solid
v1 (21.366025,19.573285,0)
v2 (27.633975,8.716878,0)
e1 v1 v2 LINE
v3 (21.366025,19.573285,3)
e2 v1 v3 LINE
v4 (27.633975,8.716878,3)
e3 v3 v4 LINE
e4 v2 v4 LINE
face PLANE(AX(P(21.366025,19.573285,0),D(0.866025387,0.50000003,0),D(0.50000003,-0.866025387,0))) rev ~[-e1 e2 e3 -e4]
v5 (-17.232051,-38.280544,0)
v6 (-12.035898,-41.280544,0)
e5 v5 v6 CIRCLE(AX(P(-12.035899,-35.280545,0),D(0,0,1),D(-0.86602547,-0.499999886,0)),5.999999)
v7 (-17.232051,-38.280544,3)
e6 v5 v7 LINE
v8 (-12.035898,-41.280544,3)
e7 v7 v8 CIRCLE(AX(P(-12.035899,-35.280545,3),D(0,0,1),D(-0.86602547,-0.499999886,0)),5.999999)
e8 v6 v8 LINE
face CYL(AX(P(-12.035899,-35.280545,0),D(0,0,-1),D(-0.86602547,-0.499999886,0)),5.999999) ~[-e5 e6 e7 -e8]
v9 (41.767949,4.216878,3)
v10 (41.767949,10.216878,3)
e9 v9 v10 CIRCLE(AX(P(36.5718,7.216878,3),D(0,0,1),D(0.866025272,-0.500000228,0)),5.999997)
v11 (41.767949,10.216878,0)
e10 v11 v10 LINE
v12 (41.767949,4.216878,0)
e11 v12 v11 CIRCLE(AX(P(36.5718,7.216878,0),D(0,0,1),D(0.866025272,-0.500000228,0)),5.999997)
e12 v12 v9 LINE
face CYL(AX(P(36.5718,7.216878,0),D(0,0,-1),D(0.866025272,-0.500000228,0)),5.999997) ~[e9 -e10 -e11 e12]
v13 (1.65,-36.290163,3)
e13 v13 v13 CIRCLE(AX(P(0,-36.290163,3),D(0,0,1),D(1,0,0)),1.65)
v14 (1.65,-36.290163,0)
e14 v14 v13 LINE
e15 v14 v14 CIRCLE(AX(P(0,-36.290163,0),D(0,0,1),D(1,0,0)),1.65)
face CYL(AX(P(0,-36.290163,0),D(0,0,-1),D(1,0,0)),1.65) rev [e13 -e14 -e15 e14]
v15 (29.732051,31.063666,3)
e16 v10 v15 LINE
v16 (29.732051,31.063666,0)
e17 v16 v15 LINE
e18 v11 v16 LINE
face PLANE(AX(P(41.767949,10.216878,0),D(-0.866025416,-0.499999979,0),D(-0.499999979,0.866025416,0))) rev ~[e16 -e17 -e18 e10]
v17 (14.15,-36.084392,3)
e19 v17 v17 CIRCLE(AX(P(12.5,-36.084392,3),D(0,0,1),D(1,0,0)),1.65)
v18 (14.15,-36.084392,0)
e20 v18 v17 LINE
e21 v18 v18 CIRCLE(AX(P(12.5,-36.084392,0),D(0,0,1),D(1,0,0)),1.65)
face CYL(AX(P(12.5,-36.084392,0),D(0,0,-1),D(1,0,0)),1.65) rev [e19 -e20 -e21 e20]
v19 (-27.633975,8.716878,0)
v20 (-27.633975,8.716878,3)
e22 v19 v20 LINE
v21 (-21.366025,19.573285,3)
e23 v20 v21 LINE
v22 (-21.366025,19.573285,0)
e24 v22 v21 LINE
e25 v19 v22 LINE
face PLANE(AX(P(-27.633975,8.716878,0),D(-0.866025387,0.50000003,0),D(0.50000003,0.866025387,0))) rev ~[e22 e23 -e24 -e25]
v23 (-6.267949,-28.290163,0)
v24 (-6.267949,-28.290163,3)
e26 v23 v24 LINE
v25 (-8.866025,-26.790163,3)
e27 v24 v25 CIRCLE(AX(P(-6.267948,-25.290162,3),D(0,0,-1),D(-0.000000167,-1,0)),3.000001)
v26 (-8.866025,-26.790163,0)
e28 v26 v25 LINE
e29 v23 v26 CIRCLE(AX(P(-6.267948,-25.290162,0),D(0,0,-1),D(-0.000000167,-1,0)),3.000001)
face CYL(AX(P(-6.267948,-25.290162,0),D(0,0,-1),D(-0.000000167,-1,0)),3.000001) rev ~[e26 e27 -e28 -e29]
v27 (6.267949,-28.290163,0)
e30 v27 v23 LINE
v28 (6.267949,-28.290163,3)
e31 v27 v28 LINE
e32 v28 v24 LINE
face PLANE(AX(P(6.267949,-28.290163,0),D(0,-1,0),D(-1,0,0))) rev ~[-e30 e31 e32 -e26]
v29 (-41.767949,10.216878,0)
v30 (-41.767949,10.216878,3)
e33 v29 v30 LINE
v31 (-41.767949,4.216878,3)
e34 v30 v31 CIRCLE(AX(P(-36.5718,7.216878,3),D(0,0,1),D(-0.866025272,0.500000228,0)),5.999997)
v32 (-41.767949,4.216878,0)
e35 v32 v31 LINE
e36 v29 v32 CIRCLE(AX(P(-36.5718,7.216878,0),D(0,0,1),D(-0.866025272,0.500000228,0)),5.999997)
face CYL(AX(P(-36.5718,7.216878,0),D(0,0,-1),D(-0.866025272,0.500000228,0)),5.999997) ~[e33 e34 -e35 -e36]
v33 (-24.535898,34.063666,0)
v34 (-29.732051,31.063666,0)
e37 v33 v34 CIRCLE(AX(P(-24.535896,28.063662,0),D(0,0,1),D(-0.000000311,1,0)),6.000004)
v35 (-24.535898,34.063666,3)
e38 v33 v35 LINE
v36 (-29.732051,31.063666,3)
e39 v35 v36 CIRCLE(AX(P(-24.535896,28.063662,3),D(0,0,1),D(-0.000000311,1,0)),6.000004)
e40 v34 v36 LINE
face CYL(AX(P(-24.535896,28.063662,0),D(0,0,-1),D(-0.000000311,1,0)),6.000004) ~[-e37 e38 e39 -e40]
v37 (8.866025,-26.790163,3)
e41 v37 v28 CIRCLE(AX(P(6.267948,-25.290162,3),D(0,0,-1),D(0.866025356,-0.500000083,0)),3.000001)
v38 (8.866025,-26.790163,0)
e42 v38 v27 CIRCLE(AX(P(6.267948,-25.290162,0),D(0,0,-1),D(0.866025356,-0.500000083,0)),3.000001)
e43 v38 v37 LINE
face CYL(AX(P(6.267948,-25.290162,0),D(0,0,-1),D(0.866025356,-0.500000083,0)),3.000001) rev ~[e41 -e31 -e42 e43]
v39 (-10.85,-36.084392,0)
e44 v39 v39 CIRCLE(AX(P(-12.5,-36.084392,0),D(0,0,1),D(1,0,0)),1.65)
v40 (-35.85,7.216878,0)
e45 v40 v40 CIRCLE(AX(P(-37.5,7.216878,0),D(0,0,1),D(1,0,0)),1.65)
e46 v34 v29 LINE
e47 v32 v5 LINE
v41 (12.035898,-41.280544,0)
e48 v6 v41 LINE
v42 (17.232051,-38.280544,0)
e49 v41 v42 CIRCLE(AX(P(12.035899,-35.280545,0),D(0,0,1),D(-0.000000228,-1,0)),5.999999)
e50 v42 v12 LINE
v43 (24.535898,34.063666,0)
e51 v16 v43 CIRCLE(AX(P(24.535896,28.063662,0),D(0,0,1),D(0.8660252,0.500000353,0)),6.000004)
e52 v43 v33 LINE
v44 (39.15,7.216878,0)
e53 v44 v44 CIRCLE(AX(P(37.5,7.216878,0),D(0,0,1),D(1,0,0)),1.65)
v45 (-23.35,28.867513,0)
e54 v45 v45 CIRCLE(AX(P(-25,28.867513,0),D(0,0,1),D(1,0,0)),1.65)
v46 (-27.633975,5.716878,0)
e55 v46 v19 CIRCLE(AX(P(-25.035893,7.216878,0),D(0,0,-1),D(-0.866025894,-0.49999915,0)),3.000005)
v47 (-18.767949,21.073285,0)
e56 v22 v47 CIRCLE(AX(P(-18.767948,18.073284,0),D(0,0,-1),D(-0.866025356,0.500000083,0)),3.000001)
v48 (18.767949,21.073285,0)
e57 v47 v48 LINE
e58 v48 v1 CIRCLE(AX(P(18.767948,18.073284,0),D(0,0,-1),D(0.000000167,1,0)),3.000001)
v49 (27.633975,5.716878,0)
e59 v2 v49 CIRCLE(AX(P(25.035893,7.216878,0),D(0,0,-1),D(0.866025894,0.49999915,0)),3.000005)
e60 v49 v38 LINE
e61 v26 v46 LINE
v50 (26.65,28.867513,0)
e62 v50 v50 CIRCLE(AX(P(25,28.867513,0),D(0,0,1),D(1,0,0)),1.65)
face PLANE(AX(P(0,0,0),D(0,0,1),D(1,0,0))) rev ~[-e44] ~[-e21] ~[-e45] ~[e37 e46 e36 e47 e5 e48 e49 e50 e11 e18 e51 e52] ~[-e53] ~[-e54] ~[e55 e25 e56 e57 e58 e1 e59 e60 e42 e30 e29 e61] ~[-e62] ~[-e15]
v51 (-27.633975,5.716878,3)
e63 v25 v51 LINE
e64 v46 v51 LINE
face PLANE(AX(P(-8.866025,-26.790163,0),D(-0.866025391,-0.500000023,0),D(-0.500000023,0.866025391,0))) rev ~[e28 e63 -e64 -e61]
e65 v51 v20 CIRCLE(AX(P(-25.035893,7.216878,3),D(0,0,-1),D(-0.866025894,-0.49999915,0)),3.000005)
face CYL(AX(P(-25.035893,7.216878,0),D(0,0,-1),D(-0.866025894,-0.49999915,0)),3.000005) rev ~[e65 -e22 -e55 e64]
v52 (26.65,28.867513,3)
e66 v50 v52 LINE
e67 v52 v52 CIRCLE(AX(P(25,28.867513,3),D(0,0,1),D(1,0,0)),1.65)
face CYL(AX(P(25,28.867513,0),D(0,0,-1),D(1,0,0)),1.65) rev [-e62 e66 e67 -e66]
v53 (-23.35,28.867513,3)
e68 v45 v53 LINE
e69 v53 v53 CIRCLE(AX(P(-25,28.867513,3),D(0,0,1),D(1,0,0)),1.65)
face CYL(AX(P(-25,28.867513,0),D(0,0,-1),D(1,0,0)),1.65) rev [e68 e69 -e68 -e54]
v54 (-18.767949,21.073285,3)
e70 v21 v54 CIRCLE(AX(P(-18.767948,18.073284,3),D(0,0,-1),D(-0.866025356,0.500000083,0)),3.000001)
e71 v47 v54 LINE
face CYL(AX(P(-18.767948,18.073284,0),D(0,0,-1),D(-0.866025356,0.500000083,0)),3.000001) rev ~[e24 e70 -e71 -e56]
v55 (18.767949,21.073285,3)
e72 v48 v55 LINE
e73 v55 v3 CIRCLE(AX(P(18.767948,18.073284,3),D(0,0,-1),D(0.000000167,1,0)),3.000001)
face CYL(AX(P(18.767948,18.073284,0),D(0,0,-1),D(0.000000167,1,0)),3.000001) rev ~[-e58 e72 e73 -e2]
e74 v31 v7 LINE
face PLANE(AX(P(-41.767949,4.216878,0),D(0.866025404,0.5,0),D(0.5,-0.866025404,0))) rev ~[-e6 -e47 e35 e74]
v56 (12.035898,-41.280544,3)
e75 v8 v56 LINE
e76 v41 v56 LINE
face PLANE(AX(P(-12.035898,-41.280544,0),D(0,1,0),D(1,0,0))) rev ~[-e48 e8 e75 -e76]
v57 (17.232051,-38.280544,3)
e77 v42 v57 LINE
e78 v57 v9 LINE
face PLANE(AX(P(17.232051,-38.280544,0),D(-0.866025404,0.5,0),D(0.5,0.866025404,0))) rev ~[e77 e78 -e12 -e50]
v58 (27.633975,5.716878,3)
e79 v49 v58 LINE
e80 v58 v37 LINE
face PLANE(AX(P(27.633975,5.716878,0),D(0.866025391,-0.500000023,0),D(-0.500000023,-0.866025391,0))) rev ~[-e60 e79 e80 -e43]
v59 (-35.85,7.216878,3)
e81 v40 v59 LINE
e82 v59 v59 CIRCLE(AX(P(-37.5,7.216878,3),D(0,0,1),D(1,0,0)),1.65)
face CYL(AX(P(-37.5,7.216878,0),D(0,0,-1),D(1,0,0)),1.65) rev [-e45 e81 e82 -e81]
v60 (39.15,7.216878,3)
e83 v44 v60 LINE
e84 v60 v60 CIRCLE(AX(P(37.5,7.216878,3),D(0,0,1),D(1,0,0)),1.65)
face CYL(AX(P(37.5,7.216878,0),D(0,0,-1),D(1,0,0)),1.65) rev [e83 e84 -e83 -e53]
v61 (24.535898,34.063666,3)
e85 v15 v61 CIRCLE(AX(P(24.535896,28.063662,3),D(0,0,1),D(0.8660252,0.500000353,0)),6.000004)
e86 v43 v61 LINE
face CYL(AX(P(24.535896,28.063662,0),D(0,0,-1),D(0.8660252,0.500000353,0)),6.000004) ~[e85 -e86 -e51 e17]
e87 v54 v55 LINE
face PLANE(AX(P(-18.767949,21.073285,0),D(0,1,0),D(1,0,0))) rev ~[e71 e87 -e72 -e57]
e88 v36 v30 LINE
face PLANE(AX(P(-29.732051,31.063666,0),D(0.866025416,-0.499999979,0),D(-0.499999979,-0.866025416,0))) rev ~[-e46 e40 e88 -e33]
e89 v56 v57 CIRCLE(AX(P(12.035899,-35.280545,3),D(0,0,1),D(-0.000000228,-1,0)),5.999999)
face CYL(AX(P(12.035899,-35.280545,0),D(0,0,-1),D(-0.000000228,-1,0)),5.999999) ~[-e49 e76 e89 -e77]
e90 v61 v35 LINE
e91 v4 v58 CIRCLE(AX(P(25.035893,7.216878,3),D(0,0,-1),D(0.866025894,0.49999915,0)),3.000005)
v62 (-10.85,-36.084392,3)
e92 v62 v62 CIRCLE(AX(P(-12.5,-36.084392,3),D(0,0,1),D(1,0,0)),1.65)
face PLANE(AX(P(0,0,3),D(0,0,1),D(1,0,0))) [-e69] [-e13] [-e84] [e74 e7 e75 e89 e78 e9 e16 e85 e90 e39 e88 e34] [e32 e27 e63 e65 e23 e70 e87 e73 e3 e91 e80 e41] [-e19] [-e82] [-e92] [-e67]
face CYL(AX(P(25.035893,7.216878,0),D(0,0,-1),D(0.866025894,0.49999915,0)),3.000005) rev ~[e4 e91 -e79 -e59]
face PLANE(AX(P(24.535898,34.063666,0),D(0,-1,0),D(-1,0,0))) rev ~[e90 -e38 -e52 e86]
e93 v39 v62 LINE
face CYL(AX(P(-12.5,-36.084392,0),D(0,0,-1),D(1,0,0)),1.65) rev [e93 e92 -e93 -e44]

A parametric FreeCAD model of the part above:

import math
import FreeCAD as App
import Part
import Sketcher

V = App.Vector
Q = App.Units.Quantity

doc = App.newDocument("Part")
body = doc.addObject("PartDesign::Body", "Body")

# Sketch on XY plane
sketch1 = body.newObject("Sketcher::SketchObject", "Sketch")
sketch1.AttachmentSupport = (doc.getObject("XY_Plane"), [""])
sketch1.MapMode = "FlatFace"
sketch1.addGeometry([
    Part.ArcOfCircle(Part.Circle(V(-24.5, 28.1, 0), V(0, 0, 1), 6), math.radians(90), math.radians(150)),  # 0
    Part.LineSegment(V(-29.7, 31.1, 0), V(-41.8, 10.2, 0)),  # 1
    Part.ArcOfCircle(Part.Circle(V(-36.6, 7.2, 0), V(0, 0, 1), 6), math.radians(150), math.radians(210)),  # 2
    Part.LineSegment(V(-41.8, 4.2, 0), V(-17.2, -38.3, 0)),  # 3
    Part.ArcOfCircle(Part.Circle(V(-12, -35.3, 0), V(0, 0, 1), 6), math.radians(-150), math.radians(-90)),  # 4
    Part.LineSegment(V(-12, -41.3, 0), V(12, -41.3, 0)),  # 5
    Part.ArcOfCircle(Part.Circle(V(12, -35.3, 0), V(0, 0, 1), 6), math.radians(-90), math.radians(-30)),  # 6
    Part.LineSegment(V(17.2, -38.3, 0), V(41.8, 4.2, 0)),  # 7
    Part.ArcOfCircle(Part.Circle(V(36.6, 7.2, 0), V(0, 0, 1), 6), math.radians(-30), math.radians(30)),  # 8
    Part.LineSegment(V(41.8, 10.2, 0), V(29.7, 31.1, 0)),  # 9
    Part.ArcOfCircle(Part.Circle(V(24.5, 28.1, 0), V(0, 0, 1), 6), math.radians(30), math.radians(90)),  # 10
    Part.LineSegment(V(24.5, 34.1, 0), V(-24.5, 34.1, 0)),  # 11
    Part.Circle(V(-12.5, -36.1, 0), V(0, 0, 1), 1.6),  # 12
    Part.Circle(V(0, -36.3, 0), V(0, 0, 1), 1.6),  # 13
    Part.Circle(V(12.5, -36.1, 0), V(0, 0, 1), 1.6),  # 14
    Part.Circle(V(-37.5, 7.2, 0), V(0, 0, 1), 1.6),  # 15
    Part.Circle(V(-25, 28.9, 0), V(0, 0, 1), 1.6),  # 16
    Part.ArcOfCircle(Part.Circle(V(6.3, -25.3, 0), V(0, 0, 1), 3), math.radians(-90), math.radians(-30)),  # 17
    Part.LineSegment(V(6.3, -28.3, 0), V(-6.3, -28.3, 0)),  # 18
    Part.ArcOfCircle(Part.Circle(V(-6.3, -25.3, 0), V(0, 0, 1), 3), math.radians(-150), math.radians(-90)),  # 19
    Part.LineSegment(V(-8.9, -26.8, 0), V(-27.6, 5.7, 0)),  # 20
    Part.ArcOfCircle(Part.Circle(V(-25, 7.2, 0), V(0, 0, 1), 3), math.radians(150), math.radians(210)),  # 21
    Part.LineSegment(V(-27.6, 8.7, 0), V(-21.4, 19.6, 0)),  # 22
    Part.ArcOfCircle(Part.Circle(V(-18.8, 18.1, 0), V(0, 0, 1), 3), math.radians(90), math.radians(150)),  # 23
    Part.LineSegment(V(-18.8, 21.1, 0), V(18.8, 21.1, 0)),  # 24
    Part.ArcOfCircle(Part.Circle(V(18.8, 18.1, 0), V(0, 0, 1), 3), math.radians(30), math.radians(90)),  # 25
    Part.LineSegment(V(21.4, 19.6, 0), V(27.6, 8.7, 0)),  # 26
    Part.ArcOfCircle(Part.Circle(V(25, 7.2, 0), V(0, 0, 1), 3), math.radians(-30), math.radians(30)),  # 27
    Part.LineSegment(V(27.6, 5.7, 0), V(8.9, -26.8, 0)),  # 28
    Part.Circle(V(37.5, 7.2, 0), V(0, 0, 1), 1.6),  # 29
    Part.Circle(V(25, 28.9, 0), V(0, 0, 1), 1.6),  # 30
], False)
sketch1.addConstraint([
    Sketcher.Constraint("Tangent", 0, 2, 1, 1),
    Sketcher.Constraint("Tangent", 1, 2, 2, 1),
    Sketcher.Constraint("Tangent", 2, 2, 3, 1),
    Sketcher.Constraint("Tangent", 3, 2, 4, 1),
    Sketcher.Constraint("Tangent", 4, 2, 5, 1),
    Sketcher.Constraint("Tangent", 5, 2, 6, 1),
    Sketcher.Constraint("Tangent", 6, 2, 7, 1),
    Sketcher.Constraint("Tangent", 7, 2, 8, 1),
    Sketcher.Constraint("Tangent", 8, 2, 9, 1),
    Sketcher.Constraint("Tangent", 9, 2, 10, 1),
    Sketcher.Constraint("Tangent", 10, 2, 11, 1),
    Sketcher.Constraint("Tangent", 11, 2, 0, 1),
    Sketcher.Constraint("Tangent", 17, 1, 18, 1),
    Sketcher.Constraint("Tangent", 18, 2, 19, 2),
    Sketcher.Constraint("Tangent", 19, 1, 20, 1),
    Sketcher.Constraint("Tangent", 20, 2, 21, 2),
    Sketcher.Constraint("Tangent", 21, 1, 22, 1),
    Sketcher.Constraint("Tangent", 22, 2, 23, 2),
    Sketcher.Constraint("Tangent", 23, 1, 24, 1),
    Sketcher.Constraint("Tangent", 24, 2, 25, 2),
    Sketcher.Constraint("Tangent", 25, 1, 26, 1),
    Sketcher.Constraint("Tangent", 26, 2, 27, 2),
    Sketcher.Constraint("Tangent", 27, 1, 28, 1),
    Sketcher.Constraint("Tangent", 28, 2, 17, 2),
    Sketcher.Constraint("Horizontal", 5),
    Sketcher.Constraint("Horizontal", 11),
    Sketcher.Constraint("Horizontal", 18),
    Sketcher.Constraint("Horizontal", 24),
    Sketcher.Constraint("Equal", 2, 4),
    Sketcher.Constraint("Equal", 4, 6),
    Sketcher.Constraint("Equal", 6, 8),
    Sketcher.Constraint("Equal", 0, 10),
    Sketcher.Constraint("Equal", 12, 13),
    Sketcher.Constraint("Equal", 13, 14),
    Sketcher.Constraint("Equal", 14, 15),
    Sketcher.Constraint("Equal", 15, 16),
    Sketcher.Constraint("Equal", 17, 19),
    Sketcher.Constraint("Equal", 19, 23),
    Sketcher.Constraint("Equal", 23, 25),
    Sketcher.Constraint("Equal", 21, 27),
    Sketcher.Constraint("Equal", 16, 29),
    Sketcher.Constraint("Equal", 29, 30),
    Sketcher.Constraint("Symmetric", 2, 3, 8, 3, -2),
    Sketcher.Constraint("Symmetric", 12, 3, 14, 3, -2),
    Sketcher.Constraint("Symmetric", 21, 3, 27, 3, -2),
    Sketcher.Constraint("Symmetric", 15, 3, 29, 3, -2),
    Sketcher.Constraint("Symmetric", 16, 3, 30, 3, -2),
    Sketcher.Constraint("PointOnObject", 13, 3, -2),
    Sketcher.Constraint("Parallel", 1, 7),
    Sketcher.Constraint("Parallel", 3, 9),
    Sketcher.Constraint("Parallel", 9, 20),
    Sketcher.Constraint("Parallel", 7, 22),
    Sketcher.Constraint("Parallel", 20, 26),
    Sketcher.Constraint("Parallel", 22, 28),
    Sketcher.Constraint("Horizontal", 8, 3, 15, 3),
    Sketcher.Constraint("Horizontal", 15, 3, 21, 3),
    Sketcher.Constraint("Horizontal", 3, 2, 6, 2),
    Sketcher.Constraint("Radius", 4, 5.999999),
    Sketcher.Constraint("Radius", 17, 3.000001),
    Sketcher.Constraint("Diameter", 12, 3.3),
    Sketcher.Constraint("Angle", 1, Q("-119.999999 deg")),
    Sketcher.Constraint("DistanceX", 16, 3, -1, 1, 25.0),
    Sketcher.Constraint("DistanceX", 12, 3, 14, 3, 25.0),
    Sketcher.Constraint("DistanceX", 15, 3, 12, 3, 25.0),
    Sketcher.Constraint("DistanceY", 13, 3, 17, 3, 11.0),
    Sketcher.Constraint("DistanceX", 1, 2, 23, 3, 23.000001),
    Sketcher.Constraint("DistanceY", 9, 2, 10, 2, 3.0),
    Sketcher.Constraint("DistanceY", 20, 2, 21, 1, 3.0),
    Sketcher.Constraint("DistanceX", 3, 2, 17, 3, 23.499999),
    Sketcher.Constraint("DistanceX", 24, 1, 24, 2, 37.535898),
    Sketcher.Constraint("Distance", 20, 37.535898),
    Sketcher.Constraint("Distance", 22, 12.535899),
    Sketcher.Constraint("DistanceX", 9, 2, 8, 2, 12.035898),
    Sketcher.Constraint("DistanceY", -1, 1, 0, 3, 28.063662),
    Sketcher.Constraint("DistanceY", 12, 3, 2, 3, 43.30127),
    Sketcher.Constraint("DistanceY", 0, 3, 16, 3, 0.803851),
])
pad1 = body.newObject("PartDesign::Pad", "Pad")
pad1.Profile = sketch1
pad1.Length = 3

doc.recompute()
